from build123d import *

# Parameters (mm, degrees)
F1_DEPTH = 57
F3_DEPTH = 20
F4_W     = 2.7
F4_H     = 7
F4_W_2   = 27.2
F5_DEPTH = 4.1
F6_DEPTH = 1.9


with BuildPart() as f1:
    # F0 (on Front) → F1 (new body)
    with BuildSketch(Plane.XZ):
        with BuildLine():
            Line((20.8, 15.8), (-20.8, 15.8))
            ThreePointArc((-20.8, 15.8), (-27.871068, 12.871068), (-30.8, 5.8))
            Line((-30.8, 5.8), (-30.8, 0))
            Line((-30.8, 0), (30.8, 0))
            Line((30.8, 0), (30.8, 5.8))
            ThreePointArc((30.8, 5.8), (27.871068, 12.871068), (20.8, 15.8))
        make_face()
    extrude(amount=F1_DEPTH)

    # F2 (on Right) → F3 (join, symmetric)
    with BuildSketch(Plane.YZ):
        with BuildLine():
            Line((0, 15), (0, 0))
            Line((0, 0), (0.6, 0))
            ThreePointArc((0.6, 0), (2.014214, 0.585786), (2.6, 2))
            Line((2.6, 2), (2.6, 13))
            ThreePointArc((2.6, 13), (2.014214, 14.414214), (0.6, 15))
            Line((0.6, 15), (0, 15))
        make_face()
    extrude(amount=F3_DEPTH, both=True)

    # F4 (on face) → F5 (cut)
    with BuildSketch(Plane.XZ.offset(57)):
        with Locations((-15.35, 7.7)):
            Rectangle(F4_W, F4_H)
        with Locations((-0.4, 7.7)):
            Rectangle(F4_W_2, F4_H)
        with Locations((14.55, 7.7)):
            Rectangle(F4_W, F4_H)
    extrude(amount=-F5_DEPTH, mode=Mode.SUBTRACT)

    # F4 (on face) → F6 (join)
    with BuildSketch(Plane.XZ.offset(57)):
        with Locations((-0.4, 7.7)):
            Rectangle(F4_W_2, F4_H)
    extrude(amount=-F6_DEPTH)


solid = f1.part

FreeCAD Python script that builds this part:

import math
import FreeCAD as App
import Part
import Sketcher
from FreeCAD import Vector
Q = App.Units.Quantity


def add_polygon(sketch, points):
    """Adds a closed chain of lines whose ends are joined by coincident constraints."""
    first, n = sketch.GeometryCount, len(points)
    for a, b in zip(points, points[1:] + points[:1]):
        sketch.addGeometry(Part.LineSegment(App.Vector(*a, 0), App.Vector(*b, 0)), False)
    for i in range(n):
        sketch.addConstraint(Sketcher.Constraint("Coincident", first + i, 2, first + (i + 1) % n, 1))

doc = App.newDocument("Part")
body = doc.addObject("PartDesign::Body", "Body")

sketch1 = body.newObject("Sketcher::SketchObject", "Sketch")
sketch1.AttachmentSupport = (doc.getObject("XZ_Plane"), [""])
sketch1.MapMode = "FlatFace"
sketch1.addGeometry(Part.LineSegment(Vector(20.8, 15.8, 0), Vector(-20.8, 15.8, 0)), False)
sketch1.addGeometry(Part.ArcOfCircle(Part.Circle(Vector(-20.800001, 5.800001, 0), Vector(0, 0, 1), 9.999999), math.radians(89.999996), math.radians(180.000004)), False)
sketch1.addGeometry(Part.LineSegment(Vector(-30.8, 5.8, 0), Vector(-30.8, 0, 0)), False)
sketch1.addGeometry(Part.LineSegment(Vector(-30.8, 0, 0), Vector(30.8, 0, 0)), False)
sketch1.addGeometry(Part.LineSegment(Vector(30.8, 0, 0), Vector(30.8, 5.8, 0)), False)
sketch1.addGeometry(Part.ArcOfCircle(Part.Circle(Vector(20.800001, 5.800001, 0), Vector(0, 0, 1), 9.999999), math.radians(-0.000004), math.radians(90.000004)), False)
sketch1.addConstraint(Sketcher.Constraint("Tangent", 0, 2, 1, 1))
sketch1.addConstraint(Sketcher.Constraint("Tangent", 1, 2, 2, 1))
sketch1.addConstraint(Sketcher.Constraint("Coincident", 2, 2, 3, 1))
sketch1.addConstraint(Sketcher.Constraint("Coincident", 3, 2, 4, 1))
sketch1.addConstraint(Sketcher.Constraint("Tangent", 4, 2, 5, 1))
sketch1.addConstraint(Sketcher.Constraint("Tangent", 5, 2, 0, 1))
sketch1.addConstraint(Sketcher.Constraint("Horizontal", 0))
sketch1.addConstraint(Sketcher.Constraint("Vertical", 2))
sketch1.addConstraint(Sketcher.Constraint("Horizontal", 3))
sketch1.addConstraint(Sketcher.Constraint("Vertical", 4))
sketch1.addConstraint(Sketcher.Constraint("Equal", 1, 5))
sketch1.addConstraint(Sketcher.Constraint("Symmetric", 2, 2, 3, 2, -1, 1))
sketch1.addConstraint(Sketcher.Constraint("Radius", 1, Q("9.999999 mm")))
sketch1.addConstraint(Sketcher.Constraint("DistanceX", 0, 2, 0, 1, Q("41.6 mm")))
sketch1.addConstraint(Sketcher.Constraint("DistanceY", 2, 2, 2, 1, Q("5.8 mm")))
pad1 = body.newObject("PartDesign::Pad", "Pad")
pad1.Profile = sketch1
pad1.Length = 57

sketch2 = body.newObject("Sketcher::SketchObject", "Sketch001")
sketch2.AttachmentSupport = (doc.getObject("YZ_Plane"), [""])
sketch2.MapMode = "FlatFace"
sketch2.addGeometry(Part.LineSegment(Vector(0, 15, 0), Vector(0, 0, 0)), False)
sketch2.addGeometry(Part.LineSegment(Vector(0, 0, 0), Vector(0.6, 0, 0)), False)
sketch2.addGeometry(Part.ArcOfCircle(Part.Circle(Vector(0.600001, 1.999999, 0), Vector(0, 0, 1), 1.999999), math.radians(-90.000043), math.radians(0.000043)), False)
sketch2.addGeometry(Part.LineSegment(Vector(2.6, 2, 0), Vector(2.6, 13, 0)), False)
sketch2.addGeometry(Part.ArcOfCircle(Part.Circle(Vector(0.600001, 13.000001, 0), Vector(0, 0, 1), 1.999999), math.radians(-0.000043), math.radians(90.000043)), False)
sketch2.addGeometry(Part.LineSegment(Vector(0.6, 15, 0), Vector(0, 15, 0)), False)
sketch2.addConstraint(Sketcher.Constraint("Coincident", 0, 2, 1, 1))
sketch2.addConstraint(Sketcher.Constraint("Tangent", 1, 2, 2, 1))
sketch2.addConstraint(Sketcher.Constraint("Tangent", 2, 2, 3, 1))
sketch2.addConstraint(Sketcher.Constraint("Tangent", 3, 2, 4, 1))
sketch2.addConstraint(Sketcher.Constraint("Tangent", 4, 2, 5, 1))
sketch2.addConstraint(Sketcher.Constraint("Coincident", 5, 2, 0, 1))
sketch2.addConstraint(Sketcher.Constraint("Vertical", 0))
sketch2.addConstraint(Sketcher.Constraint("Horizontal", 1))
sketch2.addConstraint(Sketcher.Constraint("Vertical", 3))
sketch2.addConstraint(Sketcher.Constraint("Horizontal", 5))
sketch2.addConstraint(Sketcher.Constraint("Coincident", 0, 2, -1, 1))
sketch2.addConstraint(Sketcher.Constraint("Equal", 2, 4))
sketch2.addConstraint(Sketcher.Constraint("Radius", 2, Q("1.999999 mm")))
sketch2.addConstraint(Sketcher.Constraint("DistanceY", 0, 2, 0, 1, Q("15 mm")))
sketch2.addConstraint(Sketcher.Constraint("DistanceX", 1, 1, 1, 2, Q("0.6 mm")))
pad2 = body.newObject("PartDesign::Pad", "Pad001")
pad2.Profile = sketch2
pad2.Length = 40
pad2.Midplane = True

sketch3 = body.newObject("Sketcher::SketchObject", "Sketch002")
sketch3.AttachmentSupport = (doc.getObject("XZ_Plane"), [""])
sketch3.MapMode = "FlatFace"
sketch3.AttachmentOffset = App.Placement(Vector(0, 0, 57), App.Rotation())
add_polygon(sketch3, [(-16.7, 11.2), (-16.7, 4.2), (15.9, 4.2), (15.9, 11.2)])
sketch3.addConstraint(Sketcher.Constraint("Vertical", 0))
sketch3.addConstraint(Sketcher.Constraint("Horizontal", 1))
sketch3.addConstraint(Sketcher.Constraint("Vertical", 2))
sketch3.addConstraint(Sketcher.Constraint("Horizontal", 3))
sketch3.addConstraint(Sketcher.Constraint("DistanceY", 0, 2, 0, 1, Q("7 mm")))
sketch3.addConstraint(Sketcher.Constraint("DistanceX", 1, 1, 1, 2, Q("32.6 mm")))
sketch3.addConstraint(Sketcher.Constraint("DistanceX", 0, 2, -1, 1, Q("16.7 mm")))
sketch3.addConstraint(Sketcher.Constraint("DistanceY", -1, 1, 0, 2, Q("4.2 mm")))
pocket1 = body.newObject("PartDesign::Pocket", "Pocket")
pocket1.Profile = sketch3
pocket1.Length = 4.1

sketch4 = body.newObject("Sketcher::SketchObject", "Sketch003")
sketch4.AttachmentSupport = (doc.getObject("XZ_Plane"), [""])
sketch4.MapMode = "FlatFace"
sketch4.AttachmentOffset = App.Placement(Vector(0, 0, 57), App.Rotation())
add_polygon(sketch4, [(-14, 11.2), (-14, 4.2), (13.2, 4.2), (13.2, 11.2)])
sketch4.addConstraint(Sketcher.Constraint("Vertical", 0))
sketch4.addConstraint(Sketcher.Constraint("Horizontal", 1))
sketch4.addConstraint(Sketcher.Constraint("Vertical", 2))
sketch4.addConstraint(Sketcher.Constraint("Horizontal", 3))
sketch4.addConstraint(Sketcher.Constraint("DistanceY", 0, 2, 0, 1, Q("7 mm")))
sketch4.addConstraint(Sketcher.Constraint("DistanceX", 1, 1, 1, 2, Q("27.2 mm")))
sketch4.addConstraint(Sketcher.Constraint("DistanceX", 0, 2, -1, 1, Q("14 mm")))
sketch4.addConstraint(Sketcher.Constraint("DistanceY", -1, 1, 0, 2, Q("4.2 mm")))
pad3 = body.newObject("PartDesign::Pad", "Pad002")
pad3.Profile = sketch4
pad3.Length = 1.9
pad3.Reversed = True

doc.recompute()
